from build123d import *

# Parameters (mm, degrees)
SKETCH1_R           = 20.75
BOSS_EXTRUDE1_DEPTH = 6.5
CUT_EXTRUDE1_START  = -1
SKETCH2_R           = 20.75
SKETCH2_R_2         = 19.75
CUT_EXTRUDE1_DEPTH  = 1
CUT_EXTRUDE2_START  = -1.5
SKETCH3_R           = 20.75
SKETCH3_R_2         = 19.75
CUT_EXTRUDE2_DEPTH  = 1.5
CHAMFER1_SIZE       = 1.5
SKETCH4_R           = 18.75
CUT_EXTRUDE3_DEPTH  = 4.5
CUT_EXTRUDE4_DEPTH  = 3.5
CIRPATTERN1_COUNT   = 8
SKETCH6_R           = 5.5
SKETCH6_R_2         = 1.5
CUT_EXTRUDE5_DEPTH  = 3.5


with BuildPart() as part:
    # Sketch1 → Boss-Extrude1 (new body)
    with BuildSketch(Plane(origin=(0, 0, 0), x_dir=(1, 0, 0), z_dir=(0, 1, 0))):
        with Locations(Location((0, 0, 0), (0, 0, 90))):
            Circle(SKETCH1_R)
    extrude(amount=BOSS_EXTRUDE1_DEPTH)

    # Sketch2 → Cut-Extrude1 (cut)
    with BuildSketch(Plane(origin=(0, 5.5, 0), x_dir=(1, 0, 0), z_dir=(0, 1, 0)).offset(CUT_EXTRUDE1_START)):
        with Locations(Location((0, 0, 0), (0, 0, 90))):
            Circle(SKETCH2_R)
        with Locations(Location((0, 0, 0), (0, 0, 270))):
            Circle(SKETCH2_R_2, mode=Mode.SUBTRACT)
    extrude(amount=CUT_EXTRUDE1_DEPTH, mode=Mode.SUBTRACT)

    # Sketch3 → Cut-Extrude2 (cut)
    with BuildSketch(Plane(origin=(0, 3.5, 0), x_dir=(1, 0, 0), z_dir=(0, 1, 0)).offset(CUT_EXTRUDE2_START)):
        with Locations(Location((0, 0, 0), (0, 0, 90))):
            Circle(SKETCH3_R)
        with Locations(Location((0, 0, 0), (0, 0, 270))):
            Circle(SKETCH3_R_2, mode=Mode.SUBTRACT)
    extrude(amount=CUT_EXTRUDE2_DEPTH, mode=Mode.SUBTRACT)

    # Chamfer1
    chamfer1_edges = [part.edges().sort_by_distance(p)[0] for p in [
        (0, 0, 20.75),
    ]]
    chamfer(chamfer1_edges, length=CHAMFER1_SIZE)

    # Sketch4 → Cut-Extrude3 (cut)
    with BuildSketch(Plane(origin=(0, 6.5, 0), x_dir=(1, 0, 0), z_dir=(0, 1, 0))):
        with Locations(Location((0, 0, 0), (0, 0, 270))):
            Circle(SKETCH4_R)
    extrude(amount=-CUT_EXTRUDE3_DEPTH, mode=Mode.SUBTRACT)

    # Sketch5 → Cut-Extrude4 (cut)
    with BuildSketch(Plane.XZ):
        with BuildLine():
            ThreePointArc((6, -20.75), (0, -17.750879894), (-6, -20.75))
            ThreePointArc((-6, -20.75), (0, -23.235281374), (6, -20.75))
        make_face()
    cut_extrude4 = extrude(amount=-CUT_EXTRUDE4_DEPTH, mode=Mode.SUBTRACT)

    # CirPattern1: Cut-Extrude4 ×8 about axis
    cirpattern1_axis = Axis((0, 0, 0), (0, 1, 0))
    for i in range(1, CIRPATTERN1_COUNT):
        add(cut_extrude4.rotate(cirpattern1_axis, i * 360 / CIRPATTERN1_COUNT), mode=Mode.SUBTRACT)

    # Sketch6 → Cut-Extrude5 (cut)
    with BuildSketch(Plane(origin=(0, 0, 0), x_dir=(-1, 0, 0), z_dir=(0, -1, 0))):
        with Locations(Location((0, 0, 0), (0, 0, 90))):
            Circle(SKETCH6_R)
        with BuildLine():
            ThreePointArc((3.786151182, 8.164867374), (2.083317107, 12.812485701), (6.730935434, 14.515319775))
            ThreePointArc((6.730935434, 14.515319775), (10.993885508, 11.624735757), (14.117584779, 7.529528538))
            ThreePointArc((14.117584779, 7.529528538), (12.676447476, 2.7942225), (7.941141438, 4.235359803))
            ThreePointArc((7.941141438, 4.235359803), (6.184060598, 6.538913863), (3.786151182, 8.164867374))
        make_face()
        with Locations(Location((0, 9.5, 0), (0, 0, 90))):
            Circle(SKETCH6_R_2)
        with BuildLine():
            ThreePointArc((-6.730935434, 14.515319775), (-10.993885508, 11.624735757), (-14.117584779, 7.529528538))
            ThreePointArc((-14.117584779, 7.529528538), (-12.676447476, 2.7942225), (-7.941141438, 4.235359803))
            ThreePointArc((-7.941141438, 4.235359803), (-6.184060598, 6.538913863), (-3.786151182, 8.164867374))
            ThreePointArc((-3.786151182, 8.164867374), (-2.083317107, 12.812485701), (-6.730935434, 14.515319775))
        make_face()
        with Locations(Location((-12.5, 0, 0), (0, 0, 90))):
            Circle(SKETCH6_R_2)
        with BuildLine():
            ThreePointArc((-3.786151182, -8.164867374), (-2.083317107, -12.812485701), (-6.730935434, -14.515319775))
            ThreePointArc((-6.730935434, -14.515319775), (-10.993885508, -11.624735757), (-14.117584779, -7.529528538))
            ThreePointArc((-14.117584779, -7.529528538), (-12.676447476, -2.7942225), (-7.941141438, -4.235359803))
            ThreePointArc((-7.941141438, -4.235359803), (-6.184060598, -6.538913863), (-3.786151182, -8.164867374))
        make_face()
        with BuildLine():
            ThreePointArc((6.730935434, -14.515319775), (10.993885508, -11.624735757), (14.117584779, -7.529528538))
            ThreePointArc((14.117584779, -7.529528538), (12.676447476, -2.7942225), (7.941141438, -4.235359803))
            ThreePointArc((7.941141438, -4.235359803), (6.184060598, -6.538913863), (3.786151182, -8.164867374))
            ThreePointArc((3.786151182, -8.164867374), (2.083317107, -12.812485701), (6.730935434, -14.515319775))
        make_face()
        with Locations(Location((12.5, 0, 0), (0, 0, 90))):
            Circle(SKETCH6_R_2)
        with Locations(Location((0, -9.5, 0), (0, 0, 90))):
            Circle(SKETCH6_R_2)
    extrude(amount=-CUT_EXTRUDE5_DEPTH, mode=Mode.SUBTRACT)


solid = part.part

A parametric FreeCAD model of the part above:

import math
import FreeCAD as App
import Part
import Sketcher

V = App.Vector
Q = App.Units.Quantity


def edges_at(feature, points):
    """Names of the edges that pass closest to the given points."""
    edges = feature.Shape.Edges
    near = lambda p: min(range(len(edges)), key=lambda i: edges[i].distToShape(Part.Vertex(*p))[0])
    return sorted({f"Edge{near(p) + 1}" for p in points})

doc = App.newDocument("Part")
body = doc.addObject("PartDesign::Body", "Body")

# Sketch on XZ plane
sketch1 = doc.addObject("Sketcher::SketchObject", "Sketch")
body.addObject(sketch1)
sketch1.AttachmentSupport = (doc.XZ_Plane, [""])
sketch1.MapMode = "FlatFace"
sketch1.addGeometry(Part.Circle(V(0, 0, 0), V(0, 0, 1), 21), False)
sketch1.addConstraint([
    Sketcher.Constraint("Coincident", 0, 3, -1, 1),
    Sketcher.Constraint("Diameter", 0, Q("41.5 mm")),
])
pad1 = doc.addObject("PartDesign::Pad", "Pad")
body.addObject(pad1)
pad1.Profile = sketch1
pad1.Length = 6.5
pad1.Reversed = True

# Sketch on XZ plane
sketch2 = doc.addObject("Sketcher::SketchObject", "Sketch001")
body.addObject(sketch2)
sketch2.AttachmentSupport = (doc.XZ_Plane, [""])
sketch2.MapMode = "FlatFace"
sketch2.AttachmentOffset = App.Placement(V(0, 0, -4.5), App.Rotation())
sketch2.addGeometry([
    Part.Circle(V(0, 0, 0), V(0, 0, 1), 21),
    Part.Circle(V(0, 0, 0), V(0, 0, 1), 20),
], False)
sketch2.addConstraint([
    Sketcher.Constraint("Coincident", 0, 3, -1, 1),
    Sketcher.Constraint("Coincident", 1, 3, -1, 1),
    Sketcher.Constraint("Diameter", 0, Q("41.5 mm")),
    Sketcher.Constraint("Diameter", 1, Q("39.5 mm")),
])
pocket1 = doc.addObject("PartDesign::Pocket", "Pocket")
body.addObject(pocket1)
pocket1.Profile = sketch2
pocket1.Length = 1

# Sketch on XZ plane
sketch3 = doc.addObject("Sketcher::SketchObject", "Sketch002")
body.addObject(sketch3)
sketch3.AttachmentSupport = (doc.XZ_Plane, [""])
sketch3.MapMode = "FlatFace"
sketch3.AttachmentOffset = App.Placement(V(0, 0, -2), App.Rotation())
sketch3.addGeometry([
    Part.Circle(V(0, 0, 0), V(0, 0, 1), 21),
    Part.Circle(V(0, 0, 0), V(0, 0, 1), 20),
], False)
sketch3.addConstraint([
    Sketcher.Constraint("Coincident", 0, 3, -1, 1),
    Sketcher.Constraint("Coincident", 1, 3, -1, 1),
    Sketcher.Constraint("Diameter", 0, Q("41.5 mm")),
    Sketcher.Constraint("Diameter", 1, Q("39.5 mm")),
])
pocket2 = doc.addObject("PartDesign::Pocket", "Pocket001")
body.addObject(pocket2)
pocket2.Profile = sketch3
pocket2.Length = 1.5
doc.recompute()

chamfer = doc.addObject("PartDesign::Chamfer", "Chamfer")
body.addObject(chamfer)
chamfer.Base = (pocket2, edges_at(pocket2, [(0, 0, 20.75)]))
chamfer.Size = 1.5

# Sketch on XZ plane
sketch4 = doc.addObject("Sketcher::SketchObject", "Sketch003")
body.addObject(sketch4)
sketch4.AttachmentSupport = (doc.XZ_Plane, [""])
sketch4.MapMode = "FlatFace"
sketch4.AttachmentOffset = App.Placement(V(0, 0, -6.5), App.Rotation())
sketch4.addGeometry(Part.Circle(V(0, 0, 0), V(0, 0, 1), 19), False)
sketch4.addConstraint([
    Sketcher.Constraint("Coincident", 0, 3, -1, 1),
    Sketcher.Constraint("Diameter", 0, Q("37.5 mm")),
])
pocket3 = doc.addObject("PartDesign::Pocket", "Pocket002")
body.addObject(pocket3)
pocket3.Profile = sketch4
pocket3.Length = 4.5
pocket3.Reversed = True

# Sketch on XZ plane
sketch5 = doc.addObject("Sketcher::SketchObject", "Sketch004")
body.addObject(sketch5)
sketch5.AttachmentSupport = (doc.XZ_Plane, [""])
sketch5.MapMode = "FlatFace"
sketch5.addGeometry([
    Part.ArcOfCircle(Part.Circle(V(0, -25, 0), V(0, 0, 1), 8), math.radians(37), math.radians(143)),
    Part.ArcOfCircle(Part.Circle(V(0, -15, 0), V(0, 0, 1), 8), math.radians(-135), math.radians(-45)),
], False)
sketch5.addConstraint([
    Sketcher.Constraint("Coincident", 0, 1, 1, 2),
    Sketcher.Constraint("Coincident", 1, 1, 0, 2),
    Sketcher.Constraint("Symmetric", 0, 1, 1, 1, -2),
    Sketcher.Constraint("DistanceX", -1, 1, 0, 1, Q("6 mm")),
    Sketcher.Constraint("DistanceY", 0, 1, 1, 3, Q("6 mm")),
    Sketcher.Constraint("DistanceY", 1, 3, -1, 1, Q("14.75 mm")),
    Sketcher.Constraint("Radius", 0, Q("7.50132 mm")),
])
pocket4 = doc.addObject("PartDesign::Pocket", "Pocket003")
body.addObject(pocket4)
pocket4.Profile = sketch5
pocket4.Length = 3.5
doc.recompute()

polarpattern = doc.addObject("PartDesign::PolarPattern", "PolarPattern")
body.addObject(polarpattern)
polarpattern.Originals = [pocket4]
polarpattern.Axis = (doc.Y_Axis, [""])
polarpattern.Angle = 360
polarpattern.Occurrences = 8
body.Tip = polarpattern

# Sketch on XZ plane
sketch6 = doc.addObject("Sketcher::SketchObject", "Sketch005")
body.addObject(sketch6)
sketch6.AttachmentSupport = (doc.XZ_Plane, [""])
sketch6.MapMode = "FlatFace"
sketch6.addGeometry([
    Part.Circle(V(0, 0, 0), V(0, 0, 1), 5.5),  # 0
    Part.ArcOfCircle(Part.Circle(V(-5.3, -11.3, 0), V(0, 0, 1), 3.5), math.radians(-115), math.radians(65)),  # 1
    Part.ArcOfCircle(Part.Circle(V(0, 0, 0), V(0, 0, 1), 9), math.radians(-152), math.radians(-115)),  # 2
    Part.ArcOfCircle(Part.Circle(V(-11, -5.9, 0), V(0, 0, 1), 3.5), math.radians(28), math.radians(208)),  # 3
    Part.ArcOfCircle(Part.Circle(V(0, 0, 0), V(0, 0, 1), 16), math.radians(-152), math.radians(-115)),  # 4
    Part.Circle(V(0, -9.5, 0), V(0, 0, 1), 1.5),  # 5
    Part.ArcOfCircle(Part.Circle(V(0, 0, 0), V(0, 0, 1), 16), math.radians(-65), math.radians(-28)),  # 6
    Part.ArcOfCircle(Part.Circle(V(11, -5.9, 0), V(0, 0, 1), 3.5), math.radians(-28), math.radians(152)),  # 7
    Part.ArcOfCircle(Part.Circle(V(0, 0, 0), V(0, 0, 1), 9), math.radians(-65), math.radians(-28)),  # 8
    Part.ArcOfCircle(Part.Circle(V(5.3, -11.3, 0), V(0, 0, 1), 3.5), math.radians(115), math.radians(295)),  # 9
    Part.Circle(V(12.5, 0, 0), V(0, 0, 1), 1.5),  # 10
    Part.ArcOfCircle(Part.Circle(V(5.3, 11.3, 0), V(0, 0, 1), 3.5), math.radians(65), math.radians(245)),  # 11
    Part.ArcOfCircle(Part.Circle(V(0, 0, 0), V(0, 0, 1), 9), math.radians(28), math.radians(65)),  # 12
    Part.ArcOfCircle(Part.Circle(V(11, 5.9, 0), V(0, 0, 1), 3.5), math.radians(-152), math.radians(28)),  # 13
    Part.ArcOfCircle(Part.Circle(V(0, 0, 0), V(0, 0, 1), 16), math.radians(28), math.radians(65)),  # 14
    Part.ArcOfCircle(Part.Circle(V(0, 0, 0), V(0, 0, 1), 16), math.radians(115), math.radians(152)),  # 15
    Part.ArcOfCircle(Part.Circle(V(-11, 5.9, 0), V(0, 0, 1), 3.5), math.radians(152), math.radians(332)),  # 16
    Part.ArcOfCircle(Part.Circle(V(0, 0, 0), V(0, 0, 1), 9), math.radians(115), math.radians(152)),  # 17
    Part.ArcOfCircle(Part.Circle(V(-5.3, 11.3, 0), V(0, 0, 1), 3.5), math.radians(-65), math.radians(115)),  # 18
    Part.Circle(V(-12.5, 0, 0), V(0, 0, 1), 1.5),  # 19
    Part.Circle(V(0, 9.5, 0), V(0, 0, 1), 1.5),  # 20
], False)
sketch6.addConstraint([
    Sketcher.Constraint("Tangent", 1, 2, 2, 2),
    Sketcher.Constraint("Tangent", 2, 1, 3, 1),
    Sketcher.Constraint("Tangent", 3, 2, 4, 1),
    Sketcher.Constraint("Tangent", 4, 2, 1, 1),
    Sketcher.Constraint("Tangent", 6, 2, 7, 1),
    Sketcher.Constraint("Tangent", 7, 2, 8, 2),
    Sketcher.Constraint("Tangent", 8, 1, 9, 1),
    Sketcher.Constraint("Tangent", 9, 2, 6, 1),
    Sketcher.Constraint("Tangent", 11, 2, 12, 2),
    Sketcher.Constraint("Tangent", 12, 1, 13, 1),
    Sketcher.Constraint("Tangent", 13, 2, 14, 1),
    Sketcher.Constraint("Tangent", 14, 2, 11, 1),
    Sketcher.Constraint("Tangent", 15, 2, 16, 1),
    Sketcher.Constraint("Tangent", 16, 2, 17, 2),
    Sketcher.Constraint("Tangent", 17, 1, 18, 1),
    Sketcher.Constraint("Tangent", 18, 2, 15, 1),
    Sketcher.Constraint("Coincident", 0, 3, -1, 1),
    Sketcher.Constraint("Coincident", 2, 3, -1, 1),
    Sketcher.Constraint("Coincident", 4, 3, -1, 1),
    Sketcher.Constraint("Coincident", 6, 3, -1, 1),
    Sketcher.Constraint("Coincident", 8, 3, -1, 1),
    Sketcher.Constraint("Coincident", 12, 3, -1, 1),
    Sketcher.Constraint("Coincident", 14, 3, -1, 1),
    Sketcher.Constraint("Coincident", 15, 3, -1, 1),
    Sketcher.Constraint("Coincident", 17, 3, -1, 1),
    Sketcher.Constraint("Equal", 4, 6),
    Sketcher.Constraint("Equal", 3, 7),
    Sketcher.Constraint("Equal", 5, 10),
    Sketcher.Constraint("Equal", 9, 11),
    Sketcher.Constraint("Equal", 8, 12),
    Sketcher.Constraint("Equal", 14, 15),
    Sketcher.Constraint("Equal", 13, 16),
    Sketcher.Constraint("Equal", 10, 19),
    Sketcher.Constraint("Equal", 19, 20),
    Sketcher.Constraint("Symmetric", 10, 3, 19, 3, -1, 1),
    Sketcher.Constraint("Symmetric", 5, 3, 20, 3, -1, 1),
    Sketcher.Constraint("PointOnObject", 5, 3, -2),
    Sketcher.Constraint("PointOnObject", 10, 3, -1),
    Sketcher.Constraint("Horizontal", 3, 3, 7, 3),
    Sketcher.Constraint("Horizontal", 1, 3, 9, 3),
    Sketcher.Constraint("Horizontal", 13, 3, 16, 3),
    Sketcher.Constraint("Horizontal", 11, 3, 18, 3),
    Sketcher.Constraint("Vertical", 9, 3, 11, 3),
    Sketcher.Constraint("Vertical", 7, 3, 13, 3),
    Sketcher.Constraint("Diameter", 0, Q("11 mm")),
    Sketcher.Constraint("Diameter", 5, Q("3 mm")),
    Sketcher.Constraint("Radius", 2, Q("9 mm")),
    Sketcher.Constraint("Radius", 4, Q("16 mm")),
    Sketcher.Constraint("DistanceY", 5, 3, -1, 1, Q("9.5 mm")),
    Sketcher.Constraint("DistanceX", -1, 1, 10, 3, Q("12.5 mm")),
    Sketcher.Constraint("DistanceX", 2, 1, 1, 3, Q("2.682598 mm")),
    Sketcher.Constraint("DistanceX", 1, 2, -1, 1, Q("3.786151 mm")),
])
pocket5 = doc.addObject("PartDesign::Pocket", "Pocket004")
body.addObject(pocket5)
pocket5.Profile = sketch6
pocket5.Length = 3.5

doc.recompute()
